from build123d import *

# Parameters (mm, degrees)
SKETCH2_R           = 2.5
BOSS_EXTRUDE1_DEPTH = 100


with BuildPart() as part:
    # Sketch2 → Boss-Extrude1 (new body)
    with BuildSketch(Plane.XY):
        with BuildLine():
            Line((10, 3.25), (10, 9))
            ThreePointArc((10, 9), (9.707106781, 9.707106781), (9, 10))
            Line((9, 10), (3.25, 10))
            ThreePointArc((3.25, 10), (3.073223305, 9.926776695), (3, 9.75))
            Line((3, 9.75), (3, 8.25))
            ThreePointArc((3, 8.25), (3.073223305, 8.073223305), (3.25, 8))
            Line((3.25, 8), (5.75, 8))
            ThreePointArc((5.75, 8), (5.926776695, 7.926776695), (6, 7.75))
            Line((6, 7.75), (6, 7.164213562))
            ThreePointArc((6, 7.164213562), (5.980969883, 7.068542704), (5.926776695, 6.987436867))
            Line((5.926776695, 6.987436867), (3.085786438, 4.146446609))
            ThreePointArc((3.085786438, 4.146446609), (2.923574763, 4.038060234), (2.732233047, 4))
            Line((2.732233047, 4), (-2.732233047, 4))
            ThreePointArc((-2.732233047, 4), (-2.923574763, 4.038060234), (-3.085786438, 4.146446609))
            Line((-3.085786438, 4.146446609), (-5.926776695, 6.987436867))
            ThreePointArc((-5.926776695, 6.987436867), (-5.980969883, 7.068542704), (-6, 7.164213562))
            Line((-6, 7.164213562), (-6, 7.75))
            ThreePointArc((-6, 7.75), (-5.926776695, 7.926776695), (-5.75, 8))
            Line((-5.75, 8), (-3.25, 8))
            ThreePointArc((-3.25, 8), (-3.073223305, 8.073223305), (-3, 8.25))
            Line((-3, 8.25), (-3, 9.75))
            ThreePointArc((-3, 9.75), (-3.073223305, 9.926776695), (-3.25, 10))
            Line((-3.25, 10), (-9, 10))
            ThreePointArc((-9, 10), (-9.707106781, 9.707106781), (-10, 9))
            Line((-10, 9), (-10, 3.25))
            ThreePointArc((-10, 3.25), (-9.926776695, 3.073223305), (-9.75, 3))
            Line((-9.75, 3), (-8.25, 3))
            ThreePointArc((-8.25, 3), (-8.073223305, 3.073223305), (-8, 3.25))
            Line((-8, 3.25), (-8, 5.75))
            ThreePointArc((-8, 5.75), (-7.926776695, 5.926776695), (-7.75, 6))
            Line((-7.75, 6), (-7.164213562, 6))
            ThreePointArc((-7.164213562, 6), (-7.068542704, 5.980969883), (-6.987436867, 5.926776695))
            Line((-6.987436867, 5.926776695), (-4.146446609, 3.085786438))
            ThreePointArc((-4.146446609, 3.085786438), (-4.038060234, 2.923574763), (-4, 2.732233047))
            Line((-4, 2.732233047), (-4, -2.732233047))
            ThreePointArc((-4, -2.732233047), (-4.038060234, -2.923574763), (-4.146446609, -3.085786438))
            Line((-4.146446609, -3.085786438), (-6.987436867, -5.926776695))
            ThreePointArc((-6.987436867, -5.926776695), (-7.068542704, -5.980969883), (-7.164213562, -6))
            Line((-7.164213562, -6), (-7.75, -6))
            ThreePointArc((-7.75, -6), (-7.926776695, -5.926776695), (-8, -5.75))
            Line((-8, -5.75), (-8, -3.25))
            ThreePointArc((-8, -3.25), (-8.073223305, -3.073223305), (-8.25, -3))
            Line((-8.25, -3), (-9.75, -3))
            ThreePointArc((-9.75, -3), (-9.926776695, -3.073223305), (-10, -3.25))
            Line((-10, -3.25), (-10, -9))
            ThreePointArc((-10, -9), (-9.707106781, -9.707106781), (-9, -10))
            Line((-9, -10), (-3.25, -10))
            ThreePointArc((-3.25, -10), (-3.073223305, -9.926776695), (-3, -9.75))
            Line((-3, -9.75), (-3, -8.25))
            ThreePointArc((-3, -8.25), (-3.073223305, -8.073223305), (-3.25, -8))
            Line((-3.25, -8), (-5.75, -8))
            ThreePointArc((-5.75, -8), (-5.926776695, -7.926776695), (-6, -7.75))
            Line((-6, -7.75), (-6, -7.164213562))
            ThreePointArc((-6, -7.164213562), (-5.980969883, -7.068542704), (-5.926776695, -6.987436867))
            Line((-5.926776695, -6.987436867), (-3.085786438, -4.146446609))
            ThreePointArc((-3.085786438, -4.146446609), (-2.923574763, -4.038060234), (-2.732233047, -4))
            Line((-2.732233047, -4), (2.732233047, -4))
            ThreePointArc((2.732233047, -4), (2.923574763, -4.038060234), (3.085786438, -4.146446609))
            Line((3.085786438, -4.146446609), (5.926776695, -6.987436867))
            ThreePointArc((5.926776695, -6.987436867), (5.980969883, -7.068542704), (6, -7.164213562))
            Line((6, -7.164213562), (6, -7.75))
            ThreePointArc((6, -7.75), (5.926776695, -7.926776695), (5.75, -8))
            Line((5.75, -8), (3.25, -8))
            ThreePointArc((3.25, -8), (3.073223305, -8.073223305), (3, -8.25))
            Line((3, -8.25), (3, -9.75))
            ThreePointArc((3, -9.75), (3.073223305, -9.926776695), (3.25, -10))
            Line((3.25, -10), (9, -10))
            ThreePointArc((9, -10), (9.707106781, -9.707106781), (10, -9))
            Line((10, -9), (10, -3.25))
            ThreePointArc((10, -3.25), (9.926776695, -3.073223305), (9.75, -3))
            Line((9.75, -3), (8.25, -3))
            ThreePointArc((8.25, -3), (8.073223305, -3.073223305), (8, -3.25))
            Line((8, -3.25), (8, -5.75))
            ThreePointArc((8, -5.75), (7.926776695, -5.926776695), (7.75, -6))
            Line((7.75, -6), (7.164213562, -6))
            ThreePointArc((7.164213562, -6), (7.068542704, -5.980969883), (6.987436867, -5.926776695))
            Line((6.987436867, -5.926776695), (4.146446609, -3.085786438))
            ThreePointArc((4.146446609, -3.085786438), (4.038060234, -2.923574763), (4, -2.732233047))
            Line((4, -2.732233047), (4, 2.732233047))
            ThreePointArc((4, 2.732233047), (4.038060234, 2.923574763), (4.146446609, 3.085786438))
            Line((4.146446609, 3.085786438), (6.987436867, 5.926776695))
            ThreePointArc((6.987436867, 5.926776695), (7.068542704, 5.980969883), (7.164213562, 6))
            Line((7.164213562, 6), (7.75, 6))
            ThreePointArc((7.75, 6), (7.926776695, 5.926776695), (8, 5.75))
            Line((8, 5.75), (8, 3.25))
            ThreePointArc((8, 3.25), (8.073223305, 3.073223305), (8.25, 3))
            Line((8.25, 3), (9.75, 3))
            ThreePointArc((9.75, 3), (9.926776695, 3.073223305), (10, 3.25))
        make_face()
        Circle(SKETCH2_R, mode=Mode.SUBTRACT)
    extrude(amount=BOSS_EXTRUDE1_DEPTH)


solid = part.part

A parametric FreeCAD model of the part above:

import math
import FreeCAD as App
import Part
import Sketcher

V = App.Vector

doc = App.newDocument("Part")
body = doc.addObject("PartDesign::Body", "Body")

sketch1 = doc.addObject("Sketcher::SketchObject", "Sketch")
body.addObject(sketch1)
sketch1.AttachmentSupport = (doc.XY_Plane, [""])
sketch1.MapMode = "FlatFace"
sketch1.addGeometry(Part.LineSegment(V(10, 3.25, 0), V(10, 9, 0)), False)
sketch1.addGeometry(Part.ArcOfCircle(Part.Circle(V(9, 9, 0), V(0, 0, 1), 1), math.radians(0), math.radians(90)), False)
sketch1.addGeometry(Part.LineSegment(V(9, 10, 0), V(3.25, 10, 0)), False)
sketch1.addGeometry(Part.ArcOfCircle(Part.Circle(V(3.25, 9.75, 0), V(0, 0, 1), 0.25), math.radians(90), math.radians(180)), False)
sketch1.addGeometry(Part.LineSegment(V(3, 9.75, 0), V(3, 8.25, 0)), False)
sketch1.addGeometry(Part.ArcOfCircle(Part.Circle(V(3.25, 8.25, 0), V(0, 0, 1), 0.25), math.radians(-180), math.radians(-90)), False)
sketch1.addGeometry(Part.LineSegment(V(3.25, 8, 0), V(5.75, 8, 0)), False)
sketch1.addGeometry(Part.ArcOfCircle(Part.Circle(V(5.75, 7.75, 0), V(0, 0, 1), 0.25), math.radians(0), math.radians(90)), False)
sketch1.addGeometry(Part.LineSegment(V(6, 7.75, 0), V(6, 7.16, 0)), False)
sketch1.addGeometry(Part.ArcOfCircle(Part.Circle(V(5.75, 7.16, 0), V(0, 0, 1), 0.25), math.radians(-45), math.radians(0)), False)
sketch1.addGeometry(Part.LineSegment(V(5.93, 6.99, 0), V(3.09, 4.15, 0)), False)
sketch1.addGeometry(Part.ArcOfCircle(Part.Circle(V(2.73, 4.5, 0), V(0, 0, 1), 0.5), math.radians(-90), math.radians(-45)), False)
sketch1.addGeometry(Part.LineSegment(V(2.73, 4, 0), V(-2.73, 4, 0)), False)
sketch1.addGeometry(Part.ArcOfCircle(Part.Circle(V(-2.73, 4.5, 0), V(0, 0, 1), 0.5), math.radians(-135), math.radians(-90)), False)
sketch1.addGeometry(Part.LineSegment(V(-3.09, 4.15, 0), V(-5.93, 6.99, 0)), False)
sketch1.addGeometry(Part.ArcOfCircle(Part.Circle(V(-5.75, 7.16, 0), V(0, 0, 1), 0.25), math.radians(180), math.radians(225)), False)
sketch1.addGeometry(Part.LineSegment(V(-6, 7.16, 0), V(-6, 7.75, 0)), False)
sketch1.addGeometry(Part.ArcOfCircle(Part.Circle(V(-5.75, 7.75, 0), V(0, 0, 1), 0.25), math.radians(90), math.radians(180)), False)
sketch1.addGeometry(Part.LineSegment(V(-5.75, 8, 0), V(-3.25, 8, 0)), False)
sketch1.addGeometry(Part.ArcOfCircle(Part.Circle(V(-3.25, 8.25, 0), V(0, 0, 1), 0.25), math.radians(-90), math.radians(0)), False)
sketch1.addGeometry(Part.LineSegment(V(-3, 8.25, 0), V(-3, 9.75, 0)), False)
sketch1.addGeometry(Part.ArcOfCircle(Part.Circle(V(-3.25, 9.75, 0), V(0, 0, 1), 0.25), math.radians(0), math.radians(90)), False)
sketch1.addGeometry(Part.LineSegment(V(-3.25, 10, 0), V(-9, 10, 0)), False)
sketch1.addGeometry(Part.ArcOfCircle(Part.Circle(V(-9, 9, 0), V(0, 0, 1), 1), math.radians(90), math.radians(180)), False)
sketch1.addGeometry(Part.LineSegment(V(-10, 9, 0), V(-10, 3.25, 0)), False)
sketch1.addGeometry(Part.ArcOfCircle(Part.Circle(V(-9.75, 3.25, 0), V(0, 0, 1), 0.25), math.radians(-180), math.radians(-90)), False)
sketch1.addGeometry(Part.LineSegment(V(-9.75, 3, 0), V(-8.25, 3, 0)), False)
sketch1.addGeometry(Part.ArcOfCircle(Part.Circle(V(-8.25, 3.25, 0), V(0, 0, 1), 0.25), math.radians(-90), math.radians(0)), False)
sketch1.addGeometry(Part.LineSegment(V(-8, 3.25, 0), V(-8, 5.75, 0)), False)
sketch1.addGeometry(Part.ArcOfCircle(Part.Circle(V(-7.75, 5.75, 0), V(0, 0, 1), 0.25), math.radians(90), math.radians(180)), False)
sketch1.addGeometry(Part.LineSegment(V(-7.75, 6, 0), V(-7.16, 6, 0)), False)
sketch1.addGeometry(Part.ArcOfCircle(Part.Circle(V(-7.16, 5.75, 0), V(0, 0, 1), 0.25), math.radians(45), math.radians(90)), False)
sketch1.addGeometry(Part.LineSegment(V(-6.99, 5.93, 0), V(-4.15, 3.09, 0)), False)
sketch1.addGeometry(Part.ArcOfCircle(Part.Circle(V(-4.5, 2.73, 0), V(0, 0, 1), 0.5), math.radians(0), math.radians(45)), False)
sketch1.addGeometry(Part.LineSegment(V(-4, 2.73, 0), V(-4, -2.73, 0)), False)
sketch1.addGeometry(Part.ArcOfCircle(Part.Circle(V(-4.5, -2.73, 0), V(0, 0, 1), 0.5), math.radians(-45), math.radians(0)), False)
sketch1.addGeometry(Part.LineSegment(V(-4.15, -3.09, 0), V(-6.99, -5.93, 0)), False)
sketch1.addGeometry(Part.ArcOfCircle(Part.Circle(V(-7.16, -5.75, 0), V(0, 0, 1), 0.25), math.radians(-90), math.radians(-45)), False)
sketch1.addGeometry(Part.LineSegment(V(-7.16, -6, 0), V(-7.75, -6, 0)), False)
sketch1.addGeometry(Part.ArcOfCircle(Part.Circle(V(-7.75, -5.75, 0), V(0, 0, 1), 0.25), math.radians(-180), math.radians(-90)), False)
sketch1.addGeometry(Part.LineSegment(V(-8, -5.75, 0), V(-8, -3.25, 0)), False)
sketch1.addGeometry(Part.ArcOfCircle(Part.Circle(V(-8.25, -3.25, 0), V(0, 0, 1), 0.25), math.radians(0), math.radians(90)), False)
sketch1.addGeometry(Part.LineSegment(V(-8.25, -3, 0), V(-9.75, -3, 0)), False)
sketch1.addGeometry(Part.ArcOfCircle(Part.Circle(V(-9.75, -3.25, 0), V(0, 0, 1), 0.25), math.radians(90), math.radians(180)), False)
sketch1.addGeometry(Part.LineSegment(V(-10, -3.25, 0), V(-10, -9, 0)), False)
sketch1.addGeometry(Part.ArcOfCircle(Part.Circle(V(-9, -9, 0), V(0, 0, 1), 1), math.radians(-180), math.radians(-90)), False)
sketch1.addGeometry(Part.LineSegment(V(-9, -10, 0), V(-3.25, -10, 0)), False)
sketch1.addGeometry(Part.ArcOfCircle(Part.Circle(V(-3.25, -9.75, 0), V(0, 0, 1), 0.25), math.radians(-90), math.radians(0)), False)
sketch1.addGeometry(Part.LineSegment(V(-3, -9.75, 0), V(-3, -8.25, 0)), False)
sketch1.addGeometry(Part.ArcOfCircle(Part.Circle(V(-3.25, -8.25, 0), V(0, 0, 1), 0.25), math.radians(0), math.radians(90)), False)
sketch1.addGeometry(Part.LineSegment(V(-3.25, -8, 0), V(-5.75, -8, 0)), False)
sketch1.addGeometry(Part.ArcOfCircle(Part.Circle(V(-5.75, -7.75, 0), V(0, 0, 1), 0.25), math.radians(-180), math.radians(-90)), False)
sketch1.addGeometry(Part.LineSegment(V(-6, -7.75, 0), V(-6, -7.16, 0)), False)
sketch1.addGeometry(Part.ArcOfCircle(Part.Circle(V(-5.75, -7.16, 0), V(0, 0, 1), 0.25), math.radians(135), math.radians(180)), False)
sketch1.addGeometry(Part.LineSegment(V(-5.93, -6.99, 0), V(-3.09, -4.15, 0)), False)
sketch1.addGeometry(Part.ArcOfCircle(Part.Circle(V(-2.73, -4.5, 0), V(0, 0, 1), 0.5), math.radians(90), math.radians(135)), False)
sketch1.addGeometry(Part.LineSegment(V(-2.73, -4, 0), V(2.73, -4, 0)), False)
sketch1.addGeometry(Part.ArcOfCircle(Part.Circle(V(2.73, -4.5, 0), V(0, 0, 1), 0.5), math.radians(45), math.radians(90)), False)
sketch1.addGeometry(Part.LineSegment(V(3.09, -4.15, 0), V(5.93, -6.99, 0)), False)
sketch1.addGeometry(Part.ArcOfCircle(Part.Circle(V(5.75, -7.16, 0), V(0, 0, 1), 0.25), math.radians(0), math.radians(45)), False)
sketch1.addGeometry(Part.LineSegment(V(6, -7.16, 0), V(6, -7.75, 0)), False)
sketch1.addGeometry(Part.ArcOfCircle(Part.Circle(V(5.75, -7.75, 0), V(0, 0, 1), 0.25), math.radians(-90), math.radians(0)), False)
sketch1.addGeometry(Part.LineSegment(V(5.75, -8, 0), V(3.25, -8, 0)), False)
sketch1.addGeometry(Part.ArcOfCircle(Part.Circle(V(3.25, -8.25, 0), V(0, 0, 1), 0.25), math.radians(90), math.radians(180)), False)
sketch1.addGeometry(Part.LineSegment(V(3, -8.25, 0), V(3, -9.75, 0)), False)
sketch1.addGeometry(Part.ArcOfCircle(Part.Circle(V(3.25, -9.75, 0), V(0, 0, 1), 0.25), math.radians(-180), math.radians(-90)), False)
sketch1.addGeometry(Part.LineSegment(V(3.25, -10, 0), V(9, -10, 0)), False)
sketch1.addGeometry(Part.ArcOfCircle(Part.Circle(V(9, -9, 0), V(0, 0, 1), 1), math.radians(-90), math.radians(0)), False)
sketch1.addGeometry(Part.LineSegment(V(10, -9, 0), V(10, -3.25, 0)), False)
sketch1.addGeometry(Part.ArcOfCircle(Part.Circle(V(9.75, -3.25, 0), V(0, 0, 1), 0.25), math.radians(0), math.radians(90)), False)
sketch1.addGeometry(Part.LineSegment(V(9.75, -3, 0), V(8.25, -3, 0)), False)
sketch1.addGeometry(Part.ArcOfCircle(Part.Circle(V(8.25, -3.25, 0), V(0, 0, 1), 0.25), math.radians(90), math.radians(180)), False)
sketch1.addGeometry(Part.LineSegment(V(8, -3.25, 0), V(8, -5.75, 0)), False)
sketch1.addGeometry(Part.ArcOfCircle(Part.Circle(V(7.75, -5.75, 0), V(0, 0, 1), 0.25), math.radians(-90), math.radians(0)), False)
sketch1.addGeometry(Part.LineSegment(V(7.75, -6, 0), V(7.16, -6, 0)), False)
sketch1.addGeometry(Part.ArcOfCircle(Part.Circle(V(7.16, -5.75, 0), V(0, 0, 1), 0.25), math.radians(-135), math.radians(-90)), False)
sketch1.addGeometry(Part.LineSegment(V(6.99, -5.93, 0), V(4.15, -3.09, 0)), False)
sketch1.addGeometry(Part.ArcOfCircle(Part.Circle(V(4.5, -2.73, 0), V(0, 0, 1), 0.5), math.radians(-180), math.radians(-135)), False)
sketch1.addGeometry(Part.LineSegment(V(4, -2.73, 0), V(4, 2.73, 0)), False)
sketch1.addGeometry(Part.ArcOfCircle(Part.Circle(V(4.5, 2.73, 0), V(0, 0, 1), 0.5), math.radians(135), math.radians(180)), False)
sketch1.addGeometry(Part.LineSegment(V(4.15, 3.09, 0), V(6.99, 5.93, 0)), False)
sketch1.addGeometry(Part.ArcOfCircle(Part.Circle(V(7.16, 5.75, 0), V(0, 0, 1), 0.25), math.radians(90), math.radians(135)), False)
sketch1.addGeometry(Part.LineSegment(V(7.16, 6, 0), V(7.75, 6, 0)), False)
sketch1.addGeometry(Part.ArcOfCircle(Part.Circle(V(7.75, 5.75, 0), V(0, 0, 1), 0.25), math.radians(0), math.radians(90)), False)
sketch1.addGeometry(Part.LineSegment(V(8, 5.75, 0), V(8, 3.25, 0)), False)
sketch1.addGeometry(Part.ArcOfCircle(Part.Circle(V(8.25, 3.25, 0), V(0, 0, 1), 0.25), math.radians(-180), math.radians(-90)), False)
sketch1.addGeometry(Part.LineSegment(V(8.25, 3, 0), V(9.75, 3, 0)), False)
sketch1.addGeometry(Part.ArcOfCircle(Part.Circle(V(9.75, 3.25, 0), V(0, 0, 1), 0.25), math.radians(-90), math.radians(0)), False)
sketch1.addGeometry(Part.Circle(V(0, 0, 0), V(0, 0, 1), 2.5), False)
sketch1.addConstraint(Sketcher.Constraint("Tangent", 0, 2, 1, 1))
sketch1.addConstraint(Sketcher.Constraint("Tangent", 1, 2, 2, 1))
sketch1.addConstraint(Sketcher.Constraint("Tangent", 2, 2, 3, 1))
sketch1.addConstraint(Sketcher.Constraint("Tangent", 3, 2, 4, 1))
sketch1.addConstraint(Sketcher.Constraint("Tangent", 4, 2, 5, 1))
sketch1.addConstraint(Sketcher.Constraint("Tangent", 5, 2, 6, 1))
sketch1.addConstraint(Sketcher.Constraint("Tangent", 6, 2, 7, 2))
sketch1.addConstraint(Sketcher.Constraint("Tangent", 7, 1, 8, 1))
sketch1.addConstraint(Sketcher.Constraint("Tangent", 8, 2, 9, 2))
sketch1.addConstraint(Sketcher.Constraint("Tangent", 9, 1, 10, 1))
sketch1.addConstraint(Sketcher.Constraint("Tangent", 10, 2, 11, 2))
sketch1.addConstraint(Sketcher.Constraint("Tangent", 11, 1, 12, 1))
sketch1.addConstraint(Sketcher.Constraint("Tangent", 12, 2, 13, 2))
sketch1.addConstraint(Sketcher.Constraint("Tangent", 13, 1, 14, 1))
sketch1.addConstraint(Sketcher.Constraint("Tangent", 14, 2, 15, 2))
sketch1.addConstraint(Sketcher.Constraint("Tangent", 15, 1, 16, 1))
sketch1.addConstraint(Sketcher.Constraint("Tangent", 16, 2, 17, 2))
sketch1.addConstraint(Sketcher.Constraint("Tangent", 17, 1, 18, 1))
sketch1.addConstraint(Sketcher.Constraint("Tangent", 18, 2, 19, 1))
sketch1.addConstraint(Sketcher.Constraint("Tangent", 19, 2, 20, 1))
sketch1.addConstraint(Sketcher.Constraint("Tangent", 20, 2, 21, 1))
sketch1.addConstraint(Sketcher.Constraint("Tangent", 21, 2, 22, 1))
sketch1.addConstraint(Sketcher.Constraint("Tangent", 22, 2, 23, 1))
sketch1.addConstraint(Sketcher.Constraint("Tangent", 23, 2, 24, 1))
sketch1.addConstraint(Sketcher.Constraint("Tangent", 24, 2, 25, 1))
sketch1.addConstraint(Sketcher.Constraint("Tangent", 25, 2, 26, 1))
sketch1.addConstraint(Sketcher.Constraint("Tangent", 26, 2, 27, 1))
sketch1.addConstraint(Sketcher.Constraint("Tangent", 27, 2, 28, 1))
sketch1.addConstraint(Sketcher.Constraint("Tangent", 28, 2, 29, 2))
sketch1.addConstraint(Sketcher.Constraint("Tangent", 29, 1, 30, 1))
sketch1.addConstraint(Sketcher.Constraint("Tangent", 30, 2, 31, 2))
sketch1.addConstraint(Sketcher.Constraint("Tangent", 31, 1, 32, 1))
sketch1.addConstraint(Sketcher.Constraint("Tangent", 32, 2, 33, 2))
sketch1.addConstraint(Sketcher.Constraint("Tangent", 33, 1, 34, 1))
sketch1.addConstraint(Sketcher.Constraint("Tangent", 34, 2, 35, 2))
sketch1.addConstraint(Sketcher.Constraint("Tangent", 35, 1, 36, 1))
sketch1.addConstraint(Sketcher.Constraint("Tangent", 36, 2, 37, 2))
sketch1.addConstraint(Sketcher.Constraint("Tangent", 37, 1, 38, 1))
sketch1.addConstraint(Sketcher.Constraint("Tangent", 38, 2, 39, 2))
sketch1.addConstraint(Sketcher.Constraint("Tangent", 39, 1, 40, 1))
sketch1.addConstraint(Sketcher.Constraint("Tangent", 40, 2, 41, 1))
sketch1.addConstraint(Sketcher.Constraint("Tangent", 41, 2, 42, 1))
sketch1.addConstraint(Sketcher.Constraint("Tangent", 42, 2, 43, 1))
sketch1.addConstraint(Sketcher.Constraint("Tangent", 43, 2, 44, 1))
sketch1.addConstraint(Sketcher.Constraint("Tangent", 44, 2, 45, 1))
sketch1.addConstraint(Sketcher.Constraint("Tangent", 45, 2, 46, 1))
sketch1.addConstraint(Sketcher.Constraint("Tangent", 46, 2, 47, 1))
sketch1.addConstraint(Sketcher.Constraint("Tangent", 47, 2, 48, 1))
sketch1.addConstraint(Sketcher.Constraint("Tangent", 48, 2, 49, 1))
sketch1.addConstraint(Sketcher.Constraint("Tangent", 49, 2, 50, 1))
sketch1.addConstraint(Sketcher.Constraint("Tangent", 50, 2, 51, 2))
sketch1.addConstraint(Sketcher.Constraint("Tangent", 51, 1, 52, 1))
sketch1.addConstraint(Sketcher.Constraint("Tangent", 52, 2, 53, 2))
sketch1.addConstraint(Sketcher.Constraint("Tangent", 53, 1, 54, 1))
sketch1.addConstraint(Sketcher.Constraint("Tangent", 54, 2, 55, 2))
sketch1.addConstraint(Sketcher.Constraint("Tangent", 55, 1, 56, 1))
sketch1.addConstraint(Sketcher.Constraint("Tangent", 56, 2, 57, 2))
sketch1.addConstraint(Sketcher.Constraint("Tangent", 57, 1, 58, 1))
sketch1.addConstraint(Sketcher.Constraint("Tangent", 58, 2, 59, 2))
sketch1.addConstraint(Sketcher.Constraint("Tangent", 59, 1, 60, 1))
sketch1.addConstraint(Sketcher.Constraint("Tangent", 60, 2, 61, 2))
sketch1.addConstraint(Sketcher.Constraint("Tangent", 61, 1, 62, 1))
sketch1.addConstraint(Sketcher.Constraint("Tangent", 62, 2, 63, 1))
sketch1.addConstraint(Sketcher.Constraint("Tangent", 63, 2, 64, 1))
sketch1.addConstraint(Sketcher.Constraint("Tangent", 64, 2, 65, 1))
sketch1.addConstraint(Sketcher.Constraint("Tangent", 65, 2, 66, 1))
sketch1.addConstraint(Sketcher.Constraint("Tangent", 66, 2, 67, 1))
sketch1.addConstraint(Sketcher.Constraint("Tangent", 67, 2, 68, 1))
sketch1.addConstraint(Sketcher.Constraint("Tangent", 68, 2, 69, 1))
sketch1.addConstraint(Sketcher.Constraint("Tangent", 69, 2, 70, 1))
sketch1.addConstraint(Sketcher.Constraint("Tangent", 70, 2, 71, 1))
sketch1.addConstraint(Sketcher.Constraint("Tangent", 71, 2, 72, 1))
sketch1.addConstraint(Sketcher.Constraint("Tangent", 72, 2, 73, 2))
sketch1.addConstraint(Sketcher.Constraint("Tangent", 73, 1, 74, 1))
sketch1.addConstraint(Sketcher.Constraint("Tangent", 74, 2, 75, 2))
sketch1.addConstraint(Sketcher.Constraint("Tangent", 75, 1, 76, 1))
sketch1.addConstraint(Sketcher.Constraint("Tangent", 76, 2, 77, 2))
sketch1.addConstraint(Sketcher.Constraint("Tangent", 77, 1, 78, 1))
sketch1.addConstraint(Sketcher.Constraint("Tangent", 78, 2, 79, 2))
sketch1.addConstraint(Sketcher.Constraint("Tangent", 79, 1, 80, 1))
sketch1.addConstraint(Sketcher.Constraint("Tangent", 80, 2, 81, 2))
sketch1.addConstraint(Sketcher.Constraint("Tangent", 81, 1, 82, 1))
sketch1.addConstraint(Sketcher.Constraint("Tangent", 82, 2, 83, 2))
sketch1.addConstraint(Sketcher.Constraint("Tangent", 83, 1, 84, 1))
sketch1.addConstraint(Sketcher.Constraint("Tangent", 84, 2, 85, 1))
sketch1.addConstraint(Sketcher.Constraint("Tangent", 85, 2, 86, 1))
sketch1.addConstraint(Sketcher.Constraint("Tangent", 86, 2, 87, 1))
sketch1.addConstraint(Sketcher.Constraint("Tangent", 87, 2, 0, 1))
sketch1.addConstraint(Sketcher.Constraint("Vertical", 0))
sketch1.addConstraint(Sketcher.Constraint("Horizontal", 2))
sketch1.addConstraint(Sketcher.Constraint("Vertical", 4))
sketch1.addConstraint(Sketcher.Constraint("Horizontal", 6))
sketch1.addConstraint(Sketcher.Constraint("Vertical", 8))
sketch1.addConstraint(Sketcher.Constraint("Horizontal", 12))
sketch1.addConstraint(Sketcher.Constraint("Vertical", 16))
sketch1.addConstraint(Sketcher.Constraint("Horizontal", 18))
sketch1.addConstraint(Sketcher.Constraint("Vertical", 20))
sketch1.addConstraint(Sketcher.Constraint("Horizontal", 22))
sketch1.addConstraint(Sketcher.Constraint("Vertical", 24))
sketch1.addConstraint(Sketcher.Constraint("Horizontal", 26))
sketch1.addConstraint(Sketcher.Constraint("Vertical", 28))
sketch1.addConstraint(Sketcher.Constraint("Horizontal", 30))
sketch1.addConstraint(Sketcher.Constraint("Vertical", 34))
sketch1.addConstraint(Sketcher.Constraint("Horizontal", 38))
sketch1.addConstraint(Sketcher.Constraint("Vertical", 40))
sketch1.addConstraint(Sketcher.Constraint("Horizontal", 42))
sketch1.addConstraint(Sketcher.Constraint("Vertical", 44))
sketch1.addConstraint(Sketcher.Constraint("Horizontal", 46))
sketch1.addConstraint(Sketcher.Constraint("Vertical", 48))
sketch1.addConstraint(Sketcher.Constraint("Horizontal", 50))
sketch1.addConstraint(Sketcher.Constraint("Vertical", 52))
sketch1.addConstraint(Sketcher.Constraint("Horizontal", 56))
sketch1.addConstraint(Sketcher.Constraint("Vertical", 60))
sketch1.addConstraint(Sketcher.Constraint("Horizontal", 62))
sketch1.addConstraint(Sketcher.Constraint("Vertical", 64))
sketch1.addConstraint(Sketcher.Constraint("Horizontal", 66))
sketch1.addConstraint(Sketcher.Constraint("Vertical", 68))
sketch1.addConstraint(Sketcher.Constraint("Horizontal", 70))
sketch1.addConstraint(Sketcher.Constraint("Vertical", 72))
sketch1.addConstraint(Sketcher.Constraint("Horizontal", 74))
sketch1.addConstraint(Sketcher.Constraint("Vertical", 78))
sketch1.addConstraint(Sketcher.Constraint("Horizontal", 82))
sketch1.addConstraint(Sketcher.Constraint("Vertical", 84))
sketch1.addConstraint(Sketcher.Constraint("Horizontal", 86))
sketch1.addConstraint(Sketcher.Constraint("Coincident", 88, 3, -1, 1))
sketch1.addConstraint(Sketcher.Constraint("Equal", 3, 5))
sketch1.addConstraint(Sketcher.Constraint("Equal", 5, 7))
sketch1.addConstraint(Sketcher.Constraint("Equal", 7, 9))
sketch1.addConstraint(Sketcher.Constraint("Equal", 11, 13))
sketch1.addConstraint(Sketcher.Constraint("Equal", 9, 15))
sketch1.addConstraint(Sketcher.Constraint("Equal", 15, 17))
sketch1.addConstraint(Sketcher.Constraint("Equal", 17, 19))
sketch1.addConstraint(Sketcher.Constraint("Equal", 19, 21))
sketch1.addConstraint(Sketcher.Constraint("Equal", 1, 23))
sketch1.addConstraint(Sketcher.Constraint("Equal", 21, 25))
sketch1.addConstraint(Sketcher.Constraint("Equal", 25, 27))
sketch1.addConstraint(Sketcher.Constraint("Equal", 27, 29))
sketch1.addConstraint(Sketcher.Constraint("Equal", 29, 31))
sketch1.addConstraint(Sketcher.Constraint("Equal", 13, 33))
sketch1.addConstraint(Sketcher.Constraint("Equal", 33, 35))
sketch1.addConstraint(Sketcher.Constraint("Equal", 31, 37))
sketch1.addConstraint(Sketcher.Constraint("Equal", 37, 39))
sketch1.addConstraint(Sketcher.Constraint("Equal", 39, 41))
sketch1.addConstraint(Sketcher.Constraint("Equal", 41, 43))
sketch1.addConstraint(Sketcher.Constraint("Equal", 23, 45))
sketch1.addConstraint(Sketcher.Constraint("Equal", 43, 47))
sketch1.addConstraint(Sketcher.Constraint("Equal", 47, 49))
sketch1.addConstraint(Sketcher.Constraint("Equal", 49, 51))
sketch1.addConstraint(Sketcher.Constraint("Equal", 51, 53))
sketch1.addConstraint(Sketcher.Constraint("Equal", 35, 55))
sketch1.addConstraint(Sketcher.Constraint("Equal", 55, 57))
sketch1.addConstraint(Sketcher.Constraint("Equal", 53, 59))
sketch1.addConstraint(Sketcher.Constraint("Equal", 59, 61))
sketch1.addConstraint(Sketcher.Constraint("Equal", 61, 63))
sketch1.addConstraint(Sketcher.Constraint("Equal", 63, 65))
sketch1.addConstraint(Sketcher.Constraint("Equal", 45, 67))
sketch1.addConstraint(Sketcher.Constraint("Equal", 65, 69))
sketch1.addConstraint(Sketcher.Constraint("Equal", 69, 71))
sketch1.addConstraint(Sketcher.Constraint("Equal", 71, 73))
sketch1.addConstraint(Sketcher.Constraint("Equal", 73, 75))
sketch1.addConstraint(Sketcher.Constraint("Equal", 57, 77))
sketch1.addConstraint(Sketcher.Constraint("Equal", 77, 79))
sketch1.addConstraint(Sketcher.Constraint("Equal", 75, 81))
sketch1.addConstraint(Sketcher.Constraint("Equal", 81, 83))
sketch1.addConstraint(Sketcher.Constraint("Equal", 83, 85))
sketch1.addConstraint(Sketcher.Constraint("Equal", 85, 87))
sketch1.addConstraint(Sketcher.Constraint("Symmetric", 1, 3, 45, 3, -1, 1))
sketch1.addConstraint(Sketcher.Constraint("Symmetric", 5, 3, 49, 3, -1, 1))
sketch1.addConstraint(Sketcher.Constraint("Symmetric", 9, 3, 53, 3, -1, 1))
sketch1.addConstraint(Sketcher.Constraint("Symmetric", 11, 3, 55, 3, -1, 1))
sketch1.addConstraint(Sketcher.Constraint("Symmetric", 15, 3, 59, 3, -1, 1))
sketch1.addConstraint(Sketcher.Constraint("Symmetric", 19, 3, 63, 3, -1, 1))
sketch1.addConstraint(Sketcher.Constraint("Symmetric", 23, 3, 67, 3, -1, 1))
sketch1.addConstraint(Sketcher.Constraint("Symmetric", 27, 3, 71, 3, -1, 1))
sketch1.addConstraint(Sketcher.Constraint("Symmetric", 31, 3, 75, 3, -1, 1))
sketch1.addConstraint(Sketcher.Constraint("Symmetric", 33, 3, 77, 3, -1, 1))
sketch1.addConstraint(Sketcher.Constraint("Symmetric", 37, 3, 81, 3, -1, 1))
sketch1.addConstraint(Sketcher.Constraint("Symmetric", 41, 3, 85, 3, -1, 1))
sketch1.addConstraint(Sketcher.Constraint("Symmetric", 9, 3, 15, 3, -2))
sketch1.addConstraint(Sketcher.Constraint("Symmetric", 5, 3, 19, 3, -2))
sketch1.addConstraint(Sketcher.Constraint("Symmetric", 1, 3, 23, 3, -2))
sketch1.addConstraint(Sketcher.Constraint("Symmetric", 41, 3, 71, 3, -2))
sketch1.addConstraint(Sketcher.Constraint("Symmetric", 37, 3, 75, 3, -2))
sketch1.addConstraint(Sketcher.Constraint("Perpendicular", 10, 14))
sketch1.addConstraint(Sketcher.Constraint("Parallel", 14, 32))
sketch1.addConstraint(Sketcher.Constraint("Perpendicular", 32, 36))
sketch1.addConstraint(Sketcher.Constraint("Perpendicular", 54, 58))
sketch1.addConstraint(Sketcher.Constraint("Perpendicular", 76, 80))
sketch1.addConstraint(Sketcher.Constraint("Horizontal", 35, 3, 77, 3))
sketch1.addConstraint(Sketcher.Constraint("Equal", 66, 0))
sketch1.addConstraint(Sketcher.Constraint("Equal", 86, 4))
sketch1.addConstraint(Sketcher.Constraint("Equal", 82, 8))
sketch1.addConstraint(Sketcher.Constraint("Equal", 62, 28))
sketch1.addConstraint(Sketcher.Constraint("Equal", 56, 34))
sketch1.addConstraint(Sketcher.Constraint("Equal", 14, 32))
sketch1.addConstraint(Sketcher.Constraint("Diameter", 88, 5.0))
sketch1.addConstraint(Sketcher.Constraint("Radius", 1, 1.0))
sketch1.addConstraint(Sketcher.Constraint("Radius", 11, 0.5))
sketch1.addConstraint(Sketcher.Constraint("Radius", 3, 0.25))
sketch1.addConstraint(Sketcher.Constraint("DistanceX", 6, 1, 6, 2, 2.5))
sketch1.addConstraint(Sketcher.Constraint("DistanceX", 26, 1, 26, 2, 1.5))
sketch1.addConstraint(Sketcher.Constraint("DistanceX", -1, 1, 1, 3, 9.0))
sketch1.addConstraint(Sketcher.Constraint("DistanceX", -1, 1, 3, 2, 3.0))
sketch1.addConstraint(Sketcher.Constraint("DistanceY", -1, 1, 11, 1, 4.0))
sketch1.addConstraint(Sketcher.Constraint("DistanceX", 12, 2, 12, 1, 5.464466))
pad1 = doc.addObject("PartDesign::Pad", "Pad")
body.addObject(pad1)
pad1.Profile = sketch1
pad1.Length = 100

doc.recompute()
